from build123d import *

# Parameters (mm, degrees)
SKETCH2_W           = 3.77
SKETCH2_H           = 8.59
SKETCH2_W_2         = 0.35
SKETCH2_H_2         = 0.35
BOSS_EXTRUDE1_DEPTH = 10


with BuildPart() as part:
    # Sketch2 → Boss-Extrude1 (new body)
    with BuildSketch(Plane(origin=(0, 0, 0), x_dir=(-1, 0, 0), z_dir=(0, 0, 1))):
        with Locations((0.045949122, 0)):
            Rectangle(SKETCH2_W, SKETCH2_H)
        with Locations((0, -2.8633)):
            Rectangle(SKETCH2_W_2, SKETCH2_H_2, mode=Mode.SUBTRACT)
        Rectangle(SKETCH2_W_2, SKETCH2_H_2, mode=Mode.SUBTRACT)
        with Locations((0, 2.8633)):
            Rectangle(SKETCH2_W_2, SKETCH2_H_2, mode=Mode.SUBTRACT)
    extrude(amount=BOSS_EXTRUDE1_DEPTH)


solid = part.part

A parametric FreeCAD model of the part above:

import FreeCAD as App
import Part
import Sketcher

doc = App.newDocument("Part")
body = doc.addObject("PartDesign::Body", "Body")

# Sketch on XY plane
sketch1 = body.newObject("Sketcher::SketchObject", "Sketch")
sketch1.AttachmentSupport = (doc.getObject("XY_Plane"), [""])
sketch1.MapMode = "FlatFace"
sketch1.addGeometry([
    Part.LineSegment(App.Vector(1.839051, -4.295, 0), App.Vector(1.839051, 4.295, 0)),  # 0
    Part.LineSegment(App.Vector(1.839051, 4.295, 0), App.Vector(-1.930949, 4.295, 0)),  # 1
    Part.LineSegment(App.Vector(-1.930949, 4.295, 0), App.Vector(-1.930949, -4.295, 0)),  # 2
    Part.LineSegment(App.Vector(-1.930949, -4.295, 0), App.Vector(1.839051, -4.295, 0)),  # 3
    Part.LineSegment(App.Vector(-0.175, 3.0383, 0), App.Vector(0.175, 3.0383, 0)),  # 4
    Part.LineSegment(App.Vector(0.175, 3.0383, 0), App.Vector(0.175, 2.6883, 0)),  # 5
    Part.LineSegment(App.Vector(0.175, 2.6883, 0), App.Vector(-0.175, 2.6883, 0)),  # 6
    Part.LineSegment(App.Vector(-0.175, 2.6883, 0), App.Vector(-0.175, 3.0383, 0)),  # 7
    Part.LineSegment(App.Vector(-0.175, 0.175, 0), App.Vector(0.175, 0.175, 0)),  # 8
    Part.LineSegment(App.Vector(0.175, 0.175, 0), App.Vector(0.175, -0.175, 0)),  # 9
    Part.LineSegment(App.Vector(0.175, -0.175, 0), App.Vector(-0.175, -0.175, 0)),  # 10
    Part.LineSegment(App.Vector(-0.175, -0.175, 0), App.Vector(-0.175, 0.175, 0)),  # 11
    Part.LineSegment(App.Vector(-0.175, -2.6883, 0), App.Vector(0.175, -2.6883, 0)),  # 12
    Part.LineSegment(App.Vector(0.175, -2.6883, 0), App.Vector(0.175, -3.0383, 0)),  # 13
    Part.LineSegment(App.Vector(0.175, -3.0383, 0), App.Vector(-0.175, -3.0383, 0)),  # 14
    Part.LineSegment(App.Vector(-0.175, -3.0383, 0), App.Vector(-0.175, -2.6883, 0)),  # 15
], False)
sketch1.addConstraint([
    Sketcher.Constraint("Coincident", 0, 2, 1, 1),
    Sketcher.Constraint("Coincident", 1, 2, 2, 1),
    Sketcher.Constraint("Coincident", 2, 2, 3, 1),
    Sketcher.Constraint("Coincident", 3, 2, 0, 1),
    Sketcher.Constraint("Coincident", 4, 2, 5, 1),
    Sketcher.Constraint("Coincident", 5, 2, 6, 1),
    Sketcher.Constraint("Coincident", 6, 2, 7, 1),
    Sketcher.Constraint("Coincident", 7, 2, 4, 1),
    Sketcher.Constraint("Coincident", 8, 2, 9, 1),
    Sketcher.Constraint("Coincident", 9, 2, 10, 1),
    Sketcher.Constraint("Coincident", 10, 2, 11, 1),
    Sketcher.Constraint("Coincident", 11, 2, 8, 1),
    Sketcher.Constraint("Coincident", 12, 2, 13, 1),
    Sketcher.Constraint("Coincident", 13, 2, 14, 1),
    Sketcher.Constraint("Coincident", 14, 2, 15, 1),
    Sketcher.Constraint("Coincident", 15, 2, 12, 1),
    Sketcher.Constraint("Vertical", 0),
    Sketcher.Constraint("Horizontal", 1),
    Sketcher.Constraint("Vertical", 2),
    Sketcher.Constraint("Horizontal", 3),
    Sketcher.Constraint("Horizontal", 4),
    Sketcher.Constraint("Vertical", 5),
    Sketcher.Constraint("Horizontal", 6),
    Sketcher.Constraint("Vertical", 7),
    Sketcher.Constraint("Horizontal", 8),
    Sketcher.Constraint("Vertical", 9),
    Sketcher.Constraint("Horizontal", 10),
    Sketcher.Constraint("Vertical", 11),
    Sketcher.Constraint("Horizontal", 12),
    Sketcher.Constraint("Vertical", 13),
    Sketcher.Constraint("Horizontal", 14),
    Sketcher.Constraint("Vertical", 15),
    Sketcher.Constraint("Symmetric", 8, 2, 10, 2, -1, 1),
    Sketcher.Constraint("Symmetric", 6, 2, 12, 2, -1, 1),
    Sketcher.Constraint("Symmetric", 4, 2, 14, 2, -1, 1),
    Sketcher.Constraint("Vertical", 5, 2, 8, 2),
    Sketcher.Constraint("Vertical", 7, 2, 10, 2),
    Sketcher.Constraint("Equal", 14, 5),
    Sketcher.Constraint("Equal", 7, 9),
    Sketcher.Constraint("DistanceX", 1, 2, 1, 1, 3.77),
    Sketcher.Constraint("DistanceX", 4, 1, 4, 2, 0.35),
    Sketcher.Constraint("DistanceY", 0, 1, 0, 2, 8.59),
    Sketcher.Constraint("DistanceY", 8, 2, 0, 2, 4.12),
    Sketcher.Constraint("DistanceY", -1, 1, 4, 2, 3.0383),
    Sketcher.Constraint("DistanceX", -1, 1, 0, 2, 1.839051),
])
pad1 = body.newObject("PartDesign::Pad", "Pad")
pad1.Profile = sketch1
pad1.Length = 10

doc.recompute()
